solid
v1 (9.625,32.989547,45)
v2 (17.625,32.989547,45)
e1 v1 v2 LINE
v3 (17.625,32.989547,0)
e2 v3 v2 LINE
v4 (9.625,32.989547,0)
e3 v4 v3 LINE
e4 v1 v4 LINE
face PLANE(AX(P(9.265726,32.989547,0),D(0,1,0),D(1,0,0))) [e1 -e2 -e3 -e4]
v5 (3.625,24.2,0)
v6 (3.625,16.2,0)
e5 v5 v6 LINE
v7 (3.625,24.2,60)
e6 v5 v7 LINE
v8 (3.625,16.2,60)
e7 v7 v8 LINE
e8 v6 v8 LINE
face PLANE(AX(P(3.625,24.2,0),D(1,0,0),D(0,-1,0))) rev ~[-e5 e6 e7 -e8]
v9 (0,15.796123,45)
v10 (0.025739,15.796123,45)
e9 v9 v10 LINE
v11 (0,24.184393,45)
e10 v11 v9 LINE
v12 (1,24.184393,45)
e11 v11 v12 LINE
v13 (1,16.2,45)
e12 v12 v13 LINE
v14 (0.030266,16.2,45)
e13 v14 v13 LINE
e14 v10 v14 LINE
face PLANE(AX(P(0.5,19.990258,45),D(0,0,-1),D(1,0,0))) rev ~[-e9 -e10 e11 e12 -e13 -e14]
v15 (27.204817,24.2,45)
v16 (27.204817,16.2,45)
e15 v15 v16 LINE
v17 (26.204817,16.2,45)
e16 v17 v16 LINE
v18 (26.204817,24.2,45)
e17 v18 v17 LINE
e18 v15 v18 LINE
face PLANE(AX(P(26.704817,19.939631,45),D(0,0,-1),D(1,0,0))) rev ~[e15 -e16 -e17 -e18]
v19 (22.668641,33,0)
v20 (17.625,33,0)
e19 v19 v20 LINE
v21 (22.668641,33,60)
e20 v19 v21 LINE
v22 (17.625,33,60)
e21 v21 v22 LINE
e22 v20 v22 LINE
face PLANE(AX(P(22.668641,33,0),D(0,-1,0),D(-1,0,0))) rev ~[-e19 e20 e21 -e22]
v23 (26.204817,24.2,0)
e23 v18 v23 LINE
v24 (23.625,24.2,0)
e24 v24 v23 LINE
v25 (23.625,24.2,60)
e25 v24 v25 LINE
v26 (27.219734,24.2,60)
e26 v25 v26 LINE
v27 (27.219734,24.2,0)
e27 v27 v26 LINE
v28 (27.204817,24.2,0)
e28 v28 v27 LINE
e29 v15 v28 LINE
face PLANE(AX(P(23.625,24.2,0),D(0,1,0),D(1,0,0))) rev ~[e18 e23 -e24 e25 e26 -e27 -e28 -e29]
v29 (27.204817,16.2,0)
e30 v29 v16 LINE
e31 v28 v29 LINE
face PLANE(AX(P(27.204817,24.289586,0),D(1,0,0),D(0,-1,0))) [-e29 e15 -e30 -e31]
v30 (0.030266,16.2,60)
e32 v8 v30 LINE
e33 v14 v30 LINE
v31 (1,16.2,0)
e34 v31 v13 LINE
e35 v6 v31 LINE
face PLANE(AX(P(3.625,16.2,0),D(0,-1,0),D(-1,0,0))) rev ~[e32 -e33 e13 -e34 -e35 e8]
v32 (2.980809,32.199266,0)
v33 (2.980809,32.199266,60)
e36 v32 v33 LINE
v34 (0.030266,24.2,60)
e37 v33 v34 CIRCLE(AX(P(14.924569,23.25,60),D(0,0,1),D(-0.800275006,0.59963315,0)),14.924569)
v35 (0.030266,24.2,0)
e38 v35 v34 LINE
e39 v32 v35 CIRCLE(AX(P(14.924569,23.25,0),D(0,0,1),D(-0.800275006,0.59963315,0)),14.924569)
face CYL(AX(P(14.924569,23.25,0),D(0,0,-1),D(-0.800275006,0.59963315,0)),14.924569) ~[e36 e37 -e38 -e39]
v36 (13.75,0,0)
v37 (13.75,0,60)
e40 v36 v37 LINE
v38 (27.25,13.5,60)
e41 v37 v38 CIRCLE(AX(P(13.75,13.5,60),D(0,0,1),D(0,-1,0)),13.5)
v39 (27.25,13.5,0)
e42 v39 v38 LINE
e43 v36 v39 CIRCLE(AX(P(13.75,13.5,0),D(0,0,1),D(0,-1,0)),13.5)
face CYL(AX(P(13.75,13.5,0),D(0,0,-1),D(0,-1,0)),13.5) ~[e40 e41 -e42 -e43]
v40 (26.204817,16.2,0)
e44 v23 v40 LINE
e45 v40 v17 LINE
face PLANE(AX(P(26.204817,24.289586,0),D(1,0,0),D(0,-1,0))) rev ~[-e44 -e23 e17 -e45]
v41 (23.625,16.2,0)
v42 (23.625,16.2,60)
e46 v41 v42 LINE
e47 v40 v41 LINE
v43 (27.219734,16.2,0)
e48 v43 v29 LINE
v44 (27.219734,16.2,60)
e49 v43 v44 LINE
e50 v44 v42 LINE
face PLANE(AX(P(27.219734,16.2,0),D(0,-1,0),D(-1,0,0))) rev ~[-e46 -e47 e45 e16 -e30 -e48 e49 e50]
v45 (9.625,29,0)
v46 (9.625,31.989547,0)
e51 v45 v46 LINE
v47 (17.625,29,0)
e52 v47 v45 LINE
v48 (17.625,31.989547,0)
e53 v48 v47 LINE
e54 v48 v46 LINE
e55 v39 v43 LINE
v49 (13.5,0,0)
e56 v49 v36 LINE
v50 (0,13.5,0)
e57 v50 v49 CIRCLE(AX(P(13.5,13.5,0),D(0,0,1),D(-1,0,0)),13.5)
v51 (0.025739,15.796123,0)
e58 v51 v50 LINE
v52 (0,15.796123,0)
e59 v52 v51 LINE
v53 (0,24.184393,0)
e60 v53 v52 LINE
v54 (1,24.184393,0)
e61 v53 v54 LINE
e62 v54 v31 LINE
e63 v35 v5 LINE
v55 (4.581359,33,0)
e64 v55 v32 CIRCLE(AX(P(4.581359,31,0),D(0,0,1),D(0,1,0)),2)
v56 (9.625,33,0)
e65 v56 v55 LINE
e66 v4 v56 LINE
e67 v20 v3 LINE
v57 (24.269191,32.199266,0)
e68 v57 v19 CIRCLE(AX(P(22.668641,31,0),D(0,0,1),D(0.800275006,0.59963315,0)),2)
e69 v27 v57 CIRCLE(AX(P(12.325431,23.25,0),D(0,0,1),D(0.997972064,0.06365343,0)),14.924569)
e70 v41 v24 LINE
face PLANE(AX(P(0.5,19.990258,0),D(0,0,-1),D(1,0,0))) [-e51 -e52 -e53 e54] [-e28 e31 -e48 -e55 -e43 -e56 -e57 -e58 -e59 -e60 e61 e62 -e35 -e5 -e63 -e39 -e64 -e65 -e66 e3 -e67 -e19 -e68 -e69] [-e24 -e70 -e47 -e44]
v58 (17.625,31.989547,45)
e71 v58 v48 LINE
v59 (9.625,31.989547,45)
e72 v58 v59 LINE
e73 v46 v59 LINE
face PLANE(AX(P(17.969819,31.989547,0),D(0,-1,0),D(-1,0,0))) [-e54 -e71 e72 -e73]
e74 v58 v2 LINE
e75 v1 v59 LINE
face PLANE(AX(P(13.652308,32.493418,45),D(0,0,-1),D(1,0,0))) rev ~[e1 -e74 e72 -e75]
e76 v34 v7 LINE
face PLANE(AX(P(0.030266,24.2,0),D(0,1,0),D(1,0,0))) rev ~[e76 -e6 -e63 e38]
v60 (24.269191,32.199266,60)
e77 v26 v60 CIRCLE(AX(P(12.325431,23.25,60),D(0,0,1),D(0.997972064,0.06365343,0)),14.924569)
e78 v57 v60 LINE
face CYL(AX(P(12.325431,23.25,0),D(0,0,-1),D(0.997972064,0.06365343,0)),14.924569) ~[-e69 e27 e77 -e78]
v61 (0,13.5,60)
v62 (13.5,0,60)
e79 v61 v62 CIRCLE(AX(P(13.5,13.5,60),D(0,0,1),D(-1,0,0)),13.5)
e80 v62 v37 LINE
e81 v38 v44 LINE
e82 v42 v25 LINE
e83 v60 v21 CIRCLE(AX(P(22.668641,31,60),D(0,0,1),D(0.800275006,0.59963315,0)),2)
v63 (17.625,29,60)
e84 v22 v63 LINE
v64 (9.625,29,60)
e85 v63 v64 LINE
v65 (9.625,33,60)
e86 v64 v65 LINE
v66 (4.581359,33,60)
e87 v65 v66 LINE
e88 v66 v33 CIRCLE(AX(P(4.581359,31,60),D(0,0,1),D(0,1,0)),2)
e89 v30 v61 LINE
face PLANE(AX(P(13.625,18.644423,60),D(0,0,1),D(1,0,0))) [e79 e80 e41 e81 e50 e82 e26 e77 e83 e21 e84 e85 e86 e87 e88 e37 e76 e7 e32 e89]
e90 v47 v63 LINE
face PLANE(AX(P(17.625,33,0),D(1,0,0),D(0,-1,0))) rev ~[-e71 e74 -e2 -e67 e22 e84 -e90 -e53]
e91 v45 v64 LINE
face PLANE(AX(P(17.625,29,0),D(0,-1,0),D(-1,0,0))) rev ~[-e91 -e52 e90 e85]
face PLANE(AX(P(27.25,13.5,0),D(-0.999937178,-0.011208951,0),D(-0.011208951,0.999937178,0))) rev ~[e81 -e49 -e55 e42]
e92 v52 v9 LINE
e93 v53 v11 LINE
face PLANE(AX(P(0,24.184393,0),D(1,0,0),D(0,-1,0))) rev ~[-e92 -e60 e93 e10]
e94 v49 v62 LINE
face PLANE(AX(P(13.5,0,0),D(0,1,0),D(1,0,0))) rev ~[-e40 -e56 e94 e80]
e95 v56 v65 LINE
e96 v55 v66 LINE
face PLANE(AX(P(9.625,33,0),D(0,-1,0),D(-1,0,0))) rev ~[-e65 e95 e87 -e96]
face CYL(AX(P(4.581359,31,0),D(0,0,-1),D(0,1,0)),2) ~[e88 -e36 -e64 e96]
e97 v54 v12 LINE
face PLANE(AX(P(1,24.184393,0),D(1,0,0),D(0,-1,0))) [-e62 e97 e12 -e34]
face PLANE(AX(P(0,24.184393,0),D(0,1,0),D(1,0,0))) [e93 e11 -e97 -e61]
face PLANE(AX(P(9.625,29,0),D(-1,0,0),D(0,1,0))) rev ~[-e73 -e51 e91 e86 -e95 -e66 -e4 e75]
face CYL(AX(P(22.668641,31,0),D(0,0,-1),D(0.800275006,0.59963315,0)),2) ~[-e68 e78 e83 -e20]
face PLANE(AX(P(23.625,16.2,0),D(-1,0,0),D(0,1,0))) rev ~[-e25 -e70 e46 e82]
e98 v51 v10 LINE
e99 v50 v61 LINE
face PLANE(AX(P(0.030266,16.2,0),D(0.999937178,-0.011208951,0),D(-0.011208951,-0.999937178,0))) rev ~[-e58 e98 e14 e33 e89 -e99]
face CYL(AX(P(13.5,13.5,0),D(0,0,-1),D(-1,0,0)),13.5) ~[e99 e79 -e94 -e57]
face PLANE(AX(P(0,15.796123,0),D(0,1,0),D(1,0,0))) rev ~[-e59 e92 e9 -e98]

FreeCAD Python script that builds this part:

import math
import FreeCAD as App
import Part
import Sketcher
from FreeCAD import Vector
Q = App.Units.Quantity


def add_polygon(sketch, points):
    """Adds a closed chain of lines whose ends are joined by coincident constraints."""
    first, n = sketch.GeometryCount, len(points)
    for a, b in zip(points, points[1:] + points[:1]):
        sketch.addGeometry(Part.LineSegment(App.Vector(*a, 0), App.Vector(*b, 0)), False)
    for i in range(n):
        sketch.addConstraint(Sketcher.Constraint("Coincident", first + i, 2, first + (i + 1) % n, 1))

doc = App.newDocument("Part")
body = doc.addObject("PartDesign::Body", "Body")

sketch1 = body.newObject("Sketcher::SketchObject", "Sketch")
sketch1.AttachmentSupport = (doc.getObject("XY_Plane"), [""])
sketch1.MapMode = "FlatFace"
sketch1.addGeometry(Part.ArcOfCircle(Part.Circle(Vector(13.5, 13.5, 0), Vector(0, 0, 1), 13.5), math.radians(180), math.radians(270)), False)
sketch1.addGeometry(Part.LineSegment(Vector(13.5, 0, 0), Vector(13.75, 0, 0)), False)
sketch1.addGeometry(Part.ArcOfCircle(Part.Circle(Vector(13.75, 13.5, 0), Vector(0, 0, 1), 13.5), math.radians(-90), math.radians(0)), False)
sketch1.addGeometry(Part.LineSegment(Vector(27.25, 13.5, 0), Vector(27.22, 16.2, 0)), False)
sketch1.addGeometry(Part.LineSegment(Vector(27.22, 16.2, 0), Vector(23.62, 16.2, 0)), False)
sketch1.addGeometry(Part.LineSegment(Vector(23.62, 16.2, 0), Vector(23.62, 24.2, 0)), False)
sketch1.addGeometry(Part.LineSegment(Vector(23.62, 24.2, 0), Vector(27.22, 24.2, 0)), False)
sketch1.addGeometry(Part.ArcOfCircle(Part.Circle(Vector(12.33, 23.25, 0), Vector(0, 0, 1), 14.92), math.radians(4), math.radians(37)), False)
sketch1.addGeometry(Part.ArcOfCircle(Part.Circle(Vector(22.67, 31, 0), Vector(0, 0, 1), 2), math.radians(37), math.radians(90)), False)
sketch1.addGeometry(Part.LineSegment(Vector(22.67, 33, 0), Vector(17.62, 33, 0)), False)
sketch1.addGeometry(Part.LineSegment(Vector(17.62, 33, 0), Vector(17.62, 29, 0)), False)
sketch1.addGeometry(Part.LineSegment(Vector(17.62, 29, 0), Vector(9.62, 29, 0)), False)
sketch1.addGeometry(Part.LineSegment(Vector(9.62, 29, 0), Vector(9.62, 33, 0)), False)
sketch1.addGeometry(Part.LineSegment(Vector(9.62, 33, 0), Vector(4.58, 33, 0)), False)
sketch1.addGeometry(Part.ArcOfCircle(Part.Circle(Vector(4.58, 31, 0), Vector(0, 0, 1), 2), math.radians(90), math.radians(143)), False)
sketch1.addGeometry(Part.ArcOfCircle(Part.Circle(Vector(14.92, 23.25, 0), Vector(0, 0, 1), 14.92), math.radians(143), math.radians(176)), False)
sketch1.addGeometry(Part.LineSegment(Vector(0.03, 24.2, 0), Vector(3.62, 24.2, 0)), False)
sketch1.addGeometry(Part.LineSegment(Vector(3.62, 24.2, 0), Vector(3.62, 16.2, 0)), False)
sketch1.addGeometry(Part.LineSegment(Vector(3.62, 16.2, 0), Vector(0.03, 16.2, 0)), False)
sketch1.addGeometry(Part.LineSegment(Vector(0.03, 16.2, 0), Vector(0, 13.5, 0)), False)
sketch1.addConstraint(Sketcher.Constraint("Tangent", 0, 2, 1, 1))
sketch1.addConstraint(Sketcher.Constraint("Tangent", 1, 2, 2, 1))
sketch1.addConstraint(Sketcher.Constraint("Coincident", 2, 2, 3, 1))
sketch1.addConstraint(Sketcher.Constraint("Coincident", 3, 2, 4, 1))
sketch1.addConstraint(Sketcher.Constraint("Coincident", 4, 2, 5, 1))
sketch1.addConstraint(Sketcher.Constraint("Coincident", 5, 2, 6, 1))
sketch1.addConstraint(Sketcher.Constraint("Coincident", 6, 2, 7, 1))
sketch1.addConstraint(Sketcher.Constraint("Tangent", 7, 2, 8, 1))
sketch1.addConstraint(Sketcher.Constraint("Tangent", 8, 2, 9, 1))
sketch1.addConstraint(Sketcher.Constraint("Coincident", 9, 2, 10, 1))
sketch1.addConstraint(Sketcher.Constraint("Coincident", 10, 2, 11, 1))
sketch1.addConstraint(Sketcher.Constraint("Coincident", 11, 2, 12, 1))
sketch1.addConstraint(Sketcher.Constraint("Coincident", 12, 2, 13, 1))
sketch1.addConstraint(Sketcher.Constraint("Tangent", 13, 2, 14, 1))
sketch1.addConstraint(Sketcher.Constraint("Tangent", 14, 2, 15, 1))
sketch1.addConstraint(Sketcher.Constraint("Coincident", 15, 2, 16, 1))
sketch1.addConstraint(Sketcher.Constraint("Coincident", 16, 2, 17, 1))
sketch1.addConstraint(Sketcher.Constraint("Coincident", 17, 2, 18, 1))
sketch1.addConstraint(Sketcher.Constraint("Coincident", 18, 2, 19, 1))
sketch1.addConstraint(Sketcher.Constraint("Coincident", 19, 2, 0, 1))
sketch1.addConstraint(Sketcher.Constraint("Horizontal", 1))
sketch1.addConstraint(Sketcher.Constraint("Horizontal", 4))
sketch1.addConstraint(Sketcher.Constraint("Vertical", 5))
sketch1.addConstraint(Sketcher.Constraint("Horizontal", 6))
sketch1.addConstraint(Sketcher.Constraint("Horizontal", 9))
sketch1.addConstraint(Sketcher.Constraint("Vertical", 10))
sketch1.addConstraint(Sketcher.Constraint("Horizontal", 11))
sketch1.addConstraint(Sketcher.Constraint("Vertical", 12))
sketch1.addConstraint(Sketcher.Constraint("Horizontal", 13))
sketch1.addConstraint(Sketcher.Constraint("Horizontal", 16))
sketch1.addConstraint(Sketcher.Constraint("Vertical", 17))
sketch1.addConstraint(Sketcher.Constraint("Horizontal", 18))
sketch1.addConstraint(Sketcher.Constraint("Equal", 0, 2))
sketch1.addConstraint(Sketcher.Constraint("Equal", 8, 14))
sketch1.addConstraint(Sketcher.Constraint("Equal", 7, 15))
sketch1.addConstraint(Sketcher.Constraint("PointOnObject", 0, 2, -1))
sketch1.addConstraint(Sketcher.Constraint("PointOnObject", 19, 2, -2))
sketch1.addConstraint(Sketcher.Constraint("Horizontal", 8, 3, 14, 3))
sketch1.addConstraint(Sketcher.Constraint("Horizontal", 7, 3, 15, 3))
sketch1.addConstraint(Sketcher.Constraint("Horizontal", 0, 3, 2, 2))
sketch1.addConstraint(Sketcher.Constraint("Horizontal", 6, 2, 15, 2))
sketch1.addConstraint(Sketcher.Constraint("Horizontal", 4, 2, 17, 2))
sketch1.addConstraint(Sketcher.Constraint("Horizontal", 2, 2, 19, 2))
sketch1.addConstraint(Sketcher.Constraint("Vertical", 3, 2, 6, 2))
sketch1.addConstraint(Sketcher.Constraint("Vertical", 15, 2, 18, 2))
sketch1.addConstraint(Sketcher.Constraint("Equal", 9, 13))
sketch1.addConstraint(Sketcher.Constraint("Equal", 6, 16))
sketch1.addConstraint(Sketcher.Constraint("Equal", 11, 5))
sketch1.addConstraint(Sketcher.Constraint("Equal", 3, 19))
sketch1.addConstraint(Sketcher.Constraint("Radius", 8, Q("2 mm")))
sketch1.addConstraint(Sketcher.Constraint("Radius", 0, Q("13.5 mm")))
sketch1.addConstraint(Sketcher.Constraint("DistanceX", 11, 2, 11, 1, Q("8 mm")))
sketch1.addConstraint(Sketcher.Constraint("DistanceY", 10, 2, 10, 1, Q("4 mm")))
sketch1.addConstraint(Sketcher.Constraint("DistanceY", -1, 1, 8, 3, Q("31 mm")))
sketch1.addConstraint(Sketcher.Constraint("DistanceX", 9, 2, 5, 2, Q("6 mm")))
sketch1.addConstraint(Sketcher.Constraint("DistanceX", 1, 1, 1, 2, Q("0.25 mm")))
sketch1.addConstraint(Sketcher.Constraint("DistanceY", -1, 1, 3, 2, Q("16.2 mm")))
sketch1.addConstraint(Sketcher.Constraint("DistanceY", -1, 1, 7, 3, Q("23.25 mm")))
sketch1.addConstraint(Sketcher.Constraint("Radius", 7, Q("14.924569 mm")))
sketch1.addConstraint(Sketcher.Constraint("DistanceX", 9, 2, 9, 1, Q("5.043641 mm")))
pad1 = body.newObject("PartDesign::Pad", "Pad")
pad1.Profile = sketch1
pad1.Length = 60

sketch2 = body.newObject("Sketcher::SketchObject", "Sketch001")
sketch2.AttachmentSupport = (doc.getObject("XY_Plane"), [""])
sketch2.MapMode = "FlatFace"
add_polygon(sketch2, [(0, 15.8), (0, 24.2), (1, 24.2), (1, 15.8)])
add_polygon(sketch2, [(26.2, 15.6), (26.2, 24.3), (27.2, 24.3), (27.2, 15.6)])
add_polygon(sketch2, [(18, 32), (9.4, 32), (9.3, 33), (18, 33)])
sketch2.addConstraint(Sketcher.Constraint("Vertical", 0))
sketch2.addConstraint(Sketcher.Constraint("Horizontal", 1))
sketch2.addConstraint(Sketcher.Constraint("Vertical", 2))
sketch2.addConstraint(Sketcher.Constraint("Horizontal", 3))
sketch2.addConstraint(Sketcher.Constraint("Vertical", 4))
sketch2.addConstraint(Sketcher.Constraint("Horizontal", 5))
sketch2.addConstraint(Sketcher.Constraint("Vertical", 6))
sketch2.addConstraint(Sketcher.Constraint("Horizontal", 7))
sketch2.addConstraint(Sketcher.Constraint("Horizontal", 8))
sketch2.addConstraint(Sketcher.Constraint("Horizontal", 10))
sketch2.addConstraint(Sketcher.Constraint("Vertical", 11))
sketch2.addConstraint(Sketcher.Constraint("PointOnObject", 0, 2, -2))
sketch2.addConstraint(Sketcher.Constraint("Equal", 3, 5))
sketch2.addConstraint(Sketcher.Constraint("Equal", 7, 11))
sketch2.addConstraint(Sketcher.Constraint("DistanceX", 1, 1, 1, 2, Q("1 mm")))
sketch2.addConstraint(Sketcher.Constraint("DistanceX", 10, 2, 4, 2, Q("8.234998 mm")))
sketch2.addConstraint(Sketcher.Constraint("DistanceX", 8, 2, 8, 1, Q("8.55488 mm")))
sketch2.addConstraint(Sketcher.Constraint("DistanceY", 0, 1, 0, 2, Q("8.38827 mm")))
sketch2.addConstraint(Sketcher.Constraint("DistanceY", 4, 1, 4, 2, Q("8.699909 mm")))
sketch2.addConstraint(Sketcher.Constraint("Distance", 9, Q("1.011071 mm")))
sketch2.addConstraint(Sketcher.Constraint("DistanceX", -1, 1, 8, 2, Q("9.414939 mm")))
sketch2.addConstraint(Sketcher.Constraint("DistanceY", 4, 2, 8, 2, Q("7.699961 mm")))
sketch2.addConstraint(Sketcher.Constraint("DistanceY", -1, 1, 0, 2, Q("24.184393 mm")))
sketch2.addConstraint(Sketcher.Constraint("DistanceY", -1, 1, 4, 2, Q("24.289586 mm")))
pad2 = body.newObject("PartDesign::Pad", "Pad001")
pad2.Profile = sketch2
pad2.Length = 45

doc.recompute()
